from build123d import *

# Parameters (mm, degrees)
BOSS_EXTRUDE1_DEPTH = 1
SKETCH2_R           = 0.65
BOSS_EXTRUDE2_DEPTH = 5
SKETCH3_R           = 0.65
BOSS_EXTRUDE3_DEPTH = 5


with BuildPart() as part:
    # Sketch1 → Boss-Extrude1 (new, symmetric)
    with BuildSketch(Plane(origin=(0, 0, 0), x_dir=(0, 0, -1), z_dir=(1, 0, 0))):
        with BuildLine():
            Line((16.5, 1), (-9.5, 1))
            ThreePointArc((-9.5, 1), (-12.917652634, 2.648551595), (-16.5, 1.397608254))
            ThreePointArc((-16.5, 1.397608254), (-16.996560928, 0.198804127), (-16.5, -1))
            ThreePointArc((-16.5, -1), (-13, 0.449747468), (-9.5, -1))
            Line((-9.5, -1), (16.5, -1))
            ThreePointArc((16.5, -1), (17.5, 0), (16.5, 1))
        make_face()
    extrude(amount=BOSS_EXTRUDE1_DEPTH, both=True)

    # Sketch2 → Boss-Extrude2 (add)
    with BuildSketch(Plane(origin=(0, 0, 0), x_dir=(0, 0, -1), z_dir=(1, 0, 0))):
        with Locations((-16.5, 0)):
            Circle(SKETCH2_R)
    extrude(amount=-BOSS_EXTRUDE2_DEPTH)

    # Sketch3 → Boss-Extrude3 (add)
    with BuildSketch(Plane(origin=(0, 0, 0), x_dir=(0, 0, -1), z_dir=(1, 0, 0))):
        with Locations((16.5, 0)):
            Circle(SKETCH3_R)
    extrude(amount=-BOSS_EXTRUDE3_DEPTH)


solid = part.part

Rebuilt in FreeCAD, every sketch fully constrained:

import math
import FreeCAD as App
import Part
import Sketcher
from FreeCAD import Vector
Q = App.Units.Quantity

doc = App.newDocument("Part")
body = doc.addObject("PartDesign::Body", "Body")

sketch1 = body.newObject("Sketcher::SketchObject", "Sketch")
sketch1.AttachmentSupport = (doc.getObject("YZ_Plane"), [""])
sketch1.MapMode = "FlatFace"
sketch1.addGeometry(Part.LineSegment(Vector(1, -16.5, 0), Vector(1, 9.5, 0)), False)
sketch1.addGeometry(Part.ArcOfCircle(Part.Circle(Vector(-2.3, 13.2, 0), Vector(0, 0, 1), 5), math.radians(-48), math.radians(42)), False)
sketch1.addGeometry(Part.ArcOfCircle(Part.Circle(Vector(0.2, 15.3, 0), Vector(0, 0, 1), 1.7), math.radians(45), math.radians(135)), False)
sketch1.addGeometry(Part.ArcOfCircle(Part.Circle(Vector(-4.5, 13, 0), Vector(0, 0, 1), 4.9), math.radians(-45), math.radians(45)), False)
sketch1.addGeometry(Part.LineSegment(Vector(-1, 9.5, 0), Vector(-1, -16.5, 0)), False)
sketch1.addGeometry(Part.ArcOfCircle(Part.Circle(Vector(0, -16.5, 0), Vector(0, 0, 1), 1), math.radians(180), math.radians(360)), False)
sketch1.addConstraint(Sketcher.Constraint("Coincident", 0, 2, 1, 1))
sketch1.addConstraint(Sketcher.Constraint("Coincident", 1, 2, 2, 1))
sketch1.addConstraint(Sketcher.Constraint("Coincident", 2, 2, 3, 2))
sketch1.addConstraint(Sketcher.Constraint("Coincident", 3, 1, 4, 1))
sketch1.addConstraint(Sketcher.Constraint("Tangent", 4, 2, 5, 1))
sketch1.addConstraint(Sketcher.Constraint("Tangent", 5, 2, 0, 1))
sketch1.addConstraint(Sketcher.Constraint("Vertical", 0))
sketch1.addConstraint(Sketcher.Constraint("Vertical", 4))
sketch1.addConstraint(Sketcher.Constraint("Symmetric", 2, 2, 5, 2, -1, 1))
sketch1.addConstraint(Sketcher.Constraint("Symmetric", 0, 2, 3, 1, -2))
sketch1.addConstraint(Sketcher.Constraint("Horizontal", 1, 2, 2, 2))
sketch1.addConstraint(Sketcher.Constraint("Radius", 5, Q("1 mm")))
sketch1.addConstraint(Sketcher.Constraint("DistanceY", 0, 1, 0, 2, Q("26 mm")))
sketch1.addConstraint(Sketcher.Constraint("DistanceY", 0, 2, 1, 2, Q("7 mm")))
sketch1.addConstraint(Sketcher.Constraint("DistanceX", 3, 3, -1, 1, Q("4.5 mm")))
sketch1.addConstraint(Sketcher.Constraint("DistanceX", 1, 3, 2, 3, Q("2.5 mm")))
sketch1.addConstraint(Sketcher.Constraint("Radius", 1, Q("4.957726 mm")))
sketch1.addConstraint(Sketcher.Constraint("Radius", 2, Q("1.695365 mm")))
pad1 = body.newObject("PartDesign::Pad", "Pad")
pad1.Profile = sketch1
pad1.Length = 2
pad1.Midplane = True

sketch2 = body.newObject("Sketcher::SketchObject", "Sketch001")
sketch2.AttachmentSupport = (doc.getObject("YZ_Plane"), [""])
sketch2.MapMode = "FlatFace"
sketch2.addGeometry(Part.Circle(Vector(0, 16.5, 0), Vector(0, 0, 1), 0.7), False)
sketch2.addConstraint(Sketcher.Constraint("PointOnObject", 0, 3, -2))
sketch2.addConstraint(Sketcher.Constraint("Diameter", 0, Q("1.3 mm")))
sketch2.addConstraint(Sketcher.Constraint("DistanceY", -1, 1, 0, 3, Q("16.5 mm")))
pad2 = body.newObject("PartDesign::Pad", "Pad001")
pad2.Profile = sketch2
pad2.Length = 5
pad2.Reversed = True

sketch3 = body.newObject("Sketcher::SketchObject", "Sketch002")
sketch3.AttachmentSupport = (doc.getObject("YZ_Plane"), [""])
sketch3.MapMode = "FlatFace"
sketch3.addGeometry(Part.Circle(Vector(0, -16.5, 0), Vector(0, 0, 1), 0.7), False)
sketch3.addConstraint(Sketcher.Constraint("PointOnObject", 0, 3, -2))
sketch3.addConstraint(Sketcher.Constraint("Diameter", 0, Q("1.3 mm")))
sketch3.addConstraint(Sketcher.Constraint("DistanceY", 0, 3, -1, 1, Q("16.5 mm")))
pad3 = body.newObject("PartDesign::Pad", "Pad002")
pad3.Profile = sketch3
pad3.Length = 5
pad3.Reversed = True

doc.recompute()
